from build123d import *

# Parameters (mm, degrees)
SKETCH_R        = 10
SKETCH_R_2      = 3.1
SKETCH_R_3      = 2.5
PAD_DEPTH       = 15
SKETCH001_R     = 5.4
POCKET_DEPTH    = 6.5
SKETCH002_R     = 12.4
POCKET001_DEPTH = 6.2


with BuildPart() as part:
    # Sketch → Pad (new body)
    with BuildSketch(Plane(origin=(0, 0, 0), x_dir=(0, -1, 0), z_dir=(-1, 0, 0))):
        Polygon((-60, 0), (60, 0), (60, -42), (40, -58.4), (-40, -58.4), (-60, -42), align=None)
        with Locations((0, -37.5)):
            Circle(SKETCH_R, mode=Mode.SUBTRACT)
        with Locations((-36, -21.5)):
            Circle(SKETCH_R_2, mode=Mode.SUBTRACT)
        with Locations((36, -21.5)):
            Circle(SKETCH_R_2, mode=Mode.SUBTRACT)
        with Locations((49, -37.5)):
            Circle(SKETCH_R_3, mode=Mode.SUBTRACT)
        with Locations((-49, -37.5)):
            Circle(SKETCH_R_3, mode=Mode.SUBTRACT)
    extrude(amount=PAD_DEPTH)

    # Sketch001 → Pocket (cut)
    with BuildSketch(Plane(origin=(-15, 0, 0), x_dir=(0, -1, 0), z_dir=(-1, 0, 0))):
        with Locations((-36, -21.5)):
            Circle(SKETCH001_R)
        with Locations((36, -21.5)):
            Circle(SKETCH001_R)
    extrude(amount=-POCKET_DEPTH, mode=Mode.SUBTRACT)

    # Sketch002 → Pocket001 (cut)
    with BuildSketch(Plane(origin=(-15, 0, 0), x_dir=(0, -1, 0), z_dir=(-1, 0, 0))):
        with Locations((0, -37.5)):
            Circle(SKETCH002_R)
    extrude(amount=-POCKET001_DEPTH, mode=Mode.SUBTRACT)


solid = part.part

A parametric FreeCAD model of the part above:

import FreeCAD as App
import Part
import Sketcher

V = App.Vector

doc = App.newDocument("Part")
params = doc.addObject("Spreadsheet::Sheet", "Params")
for row, (alias, value) in enumerate([
    ("sketch1_diameter", "5 mm"),
    ("sketch1_diameter2", "20 mm"),
    ("sketch1_diameter3", "6.2 mm"),
    ("sketch1_width", "120 mm"),
    ("sketch1_width2", "80 mm"),
    ("pad1_length", "15 mm"),
    ("sketch2_diameter", "10.8 mm"),
    ("pocket1_length", "6.5 mm"),
    ("sketch3_diameter", "24.8 mm"),
    ("pocket2_length", "6.2 mm"),
], start=1):
    params.set(f"A{row}", alias)
    params.set(f"B{row}", "=" + value)
    params.setAlias(f"B{row}", alias)

body = doc.addObject("PartDesign::Body", "Body")

sketch1 = doc.addObject("Sketcher::SketchObject", "Sketch")
body.addObject(sketch1)
sketch1.AttachmentSupport = (doc.YZ_Plane, [""])
sketch1.MapMode = "FlatFace"
sketch1.addGeometry([
    Part.LineSegment(V(-60, 0, 0), V(60, 0, 0)),
    Part.LineSegment(V(60, 0, 0), V(60, -42, 0)),
    Part.LineSegment(V(60, -42, 0), V(40, -58.4, 0)),
    Part.LineSegment(V(40, -58.4, 0), V(-40, -58.4, 0)),
    Part.LineSegment(V(-40, -58.4, 0), V(-60, -42, 0)),
    Part.LineSegment(V(-60, -42, 0), V(-60, 0, 0)),
    Part.Circle(V(-49, -37.5, 0), V(0, 0, 1), 2.5),
    Part.Circle(V(0, -37.5, 0), V(0, 0, 1), 10),
    Part.Circle(V(49, -37.5, 0), V(0, 0, 1), 2.5),
    Part.Circle(V(-36, -21.5, 0), V(0, 0, 1), 3.1),
    Part.Circle(V(36, -21.5, 0), V(0, 0, 1), 3.1),
], False)
sketch1.addConstraint([
    Sketcher.Constraint("Coincident", 0, 2, 1, 1),
    Sketcher.Constraint("Coincident", 1, 2, 2, 1),
    Sketcher.Constraint("Coincident", 2, 2, 3, 1),
    Sketcher.Constraint("Coincident", 3, 2, 4, 1),
    Sketcher.Constraint("Coincident", 4, 2, 5, 1),
    Sketcher.Constraint("Coincident", 5, 2, 0, 1),
    Sketcher.Constraint("Horizontal", 0),
    Sketcher.Constraint("Vertical", 1),
    Sketcher.Constraint("Horizontal", 3),
    Sketcher.Constraint("Vertical", 5),
    Sketcher.Constraint("Equal", 6, 8),
    Sketcher.Constraint("Equal", 9, 10),
    Sketcher.Constraint("Symmetric", 0, 2, 5, 2, -1, 1),
    Sketcher.Constraint("Symmetric", 6, 3, 8, 3, -2),
    Sketcher.Constraint("Symmetric", 9, 3, 10, 3, -2),
    Sketcher.Constraint("PointOnObject", 7, 3, -2),
    Sketcher.Constraint("Horizontal", 6, 3, 7, 3),
    Sketcher.Constraint("Horizontal", 1, 2, 4, 2),
    Sketcher.Constraint("Equal", 2, 4),
    Sketcher.Constraint("Diameter", 6, 5.0),
    Sketcher.Constraint("Diameter", 7, 20.0),
    Sketcher.Constraint("Diameter", 9, 6.2),
    Sketcher.Constraint("DistanceX", 0, 1, 0, 2, 120.0),
    Sketcher.Constraint("DistanceX", 3, 2, 3, 1, 80.0),
    Sketcher.Constraint("DistanceY", 1, 2, 1, 1, 42.0),
    Sketcher.Constraint("DistanceX", 6, 3, -1, 1, 49.0),
    Sketcher.Constraint("DistanceX", 9, 3, -1, 1, 36.0),
    Sketcher.Constraint("DistanceY", 6, 3, 9, 3, 16.0),
    Sketcher.Constraint("DistanceY", 6, 3, -1, 1, 37.5),
    Sketcher.Constraint("DistanceY", 2, 2, -1, 1, 58.4),
])
sketch1.setExpression("Constraints[19]", "Params.sketch1_diameter")
sketch1.setExpression("Constraints[20]", "Params.sketch1_diameter2")
sketch1.setExpression("Constraints[21]", "Params.sketch1_diameter3")
sketch1.setExpression("Constraints[22]", "Params.sketch1_width")
sketch1.setExpression("Constraints[23]", "Params.sketch1_width2")
pad1 = doc.addObject("PartDesign::Pad", "Pad")
body.addObject(pad1)
pad1.Profile = sketch1
pad1.setExpression("Length", "Params.pad1_length")
pad1.Reversed = True

sketch2 = doc.addObject("Sketcher::SketchObject", "Sketch001")
body.addObject(sketch2)
sketch2.AttachmentSupport = (doc.YZ_Plane, [""])
sketch2.MapMode = "FlatFace"
sketch2.AttachmentOffset = App.Placement(V(0, 0, -15), App.Rotation())
sketch2.addGeometry([
    Part.Circle(V(36, -22, 0), V(0, 0, 1), 5),
    Part.Circle(V(-36, -22, 0), V(0, 0, 1), 5),
], False)
sketch2.addConstraint([
    Sketcher.Constraint("Equal", 0, 1),
    Sketcher.Constraint("Symmetric", 0, 3, 1, 3, -2),
    Sketcher.Constraint("Diameter", 0, 10.8),
    Sketcher.Constraint("DistanceX", -1, 1, 0, 3, 36.0),
    Sketcher.Constraint("DistanceY", 0, 3, -1, 1, 21.5),
])
sketch2.setExpression("Constraints[2]", "Params.sketch2_diameter")
pocket1 = doc.addObject("PartDesign::Pocket", "Pocket")
body.addObject(pocket1)
pocket1.Profile = sketch2
pocket1.setExpression("Length", "Params.pocket1_length")
pocket1.Reversed = True

sketch3 = doc.addObject("Sketcher::SketchObject", "Sketch002")
body.addObject(sketch3)
sketch3.AttachmentSupport = (doc.YZ_Plane, [""])
sketch3.MapMode = "FlatFace"
sketch3.AttachmentOffset = App.Placement(V(0, 0, -15), App.Rotation())
sketch3.addGeometry(Part.Circle(V(0, -38, 0), V(0, 0, 1), 12), False)
sketch3.addConstraint([
    Sketcher.Constraint("PointOnObject", 0, 3, -2),
    Sketcher.Constraint("Diameter", 0, 24.8),
    Sketcher.Constraint("DistanceY", 0, 3, -1, 1, 37.5),
])
sketch3.setExpression("Constraints[1]", "Params.sketch3_diameter")
pocket2 = doc.addObject("PartDesign::Pocket", "Pocket001")
body.addObject(pocket2)
pocket2.Profile = sketch3
pocket2.setExpression("Length", "Params.pocket2_length")
pocket2.Reversed = True

doc.recompute()
